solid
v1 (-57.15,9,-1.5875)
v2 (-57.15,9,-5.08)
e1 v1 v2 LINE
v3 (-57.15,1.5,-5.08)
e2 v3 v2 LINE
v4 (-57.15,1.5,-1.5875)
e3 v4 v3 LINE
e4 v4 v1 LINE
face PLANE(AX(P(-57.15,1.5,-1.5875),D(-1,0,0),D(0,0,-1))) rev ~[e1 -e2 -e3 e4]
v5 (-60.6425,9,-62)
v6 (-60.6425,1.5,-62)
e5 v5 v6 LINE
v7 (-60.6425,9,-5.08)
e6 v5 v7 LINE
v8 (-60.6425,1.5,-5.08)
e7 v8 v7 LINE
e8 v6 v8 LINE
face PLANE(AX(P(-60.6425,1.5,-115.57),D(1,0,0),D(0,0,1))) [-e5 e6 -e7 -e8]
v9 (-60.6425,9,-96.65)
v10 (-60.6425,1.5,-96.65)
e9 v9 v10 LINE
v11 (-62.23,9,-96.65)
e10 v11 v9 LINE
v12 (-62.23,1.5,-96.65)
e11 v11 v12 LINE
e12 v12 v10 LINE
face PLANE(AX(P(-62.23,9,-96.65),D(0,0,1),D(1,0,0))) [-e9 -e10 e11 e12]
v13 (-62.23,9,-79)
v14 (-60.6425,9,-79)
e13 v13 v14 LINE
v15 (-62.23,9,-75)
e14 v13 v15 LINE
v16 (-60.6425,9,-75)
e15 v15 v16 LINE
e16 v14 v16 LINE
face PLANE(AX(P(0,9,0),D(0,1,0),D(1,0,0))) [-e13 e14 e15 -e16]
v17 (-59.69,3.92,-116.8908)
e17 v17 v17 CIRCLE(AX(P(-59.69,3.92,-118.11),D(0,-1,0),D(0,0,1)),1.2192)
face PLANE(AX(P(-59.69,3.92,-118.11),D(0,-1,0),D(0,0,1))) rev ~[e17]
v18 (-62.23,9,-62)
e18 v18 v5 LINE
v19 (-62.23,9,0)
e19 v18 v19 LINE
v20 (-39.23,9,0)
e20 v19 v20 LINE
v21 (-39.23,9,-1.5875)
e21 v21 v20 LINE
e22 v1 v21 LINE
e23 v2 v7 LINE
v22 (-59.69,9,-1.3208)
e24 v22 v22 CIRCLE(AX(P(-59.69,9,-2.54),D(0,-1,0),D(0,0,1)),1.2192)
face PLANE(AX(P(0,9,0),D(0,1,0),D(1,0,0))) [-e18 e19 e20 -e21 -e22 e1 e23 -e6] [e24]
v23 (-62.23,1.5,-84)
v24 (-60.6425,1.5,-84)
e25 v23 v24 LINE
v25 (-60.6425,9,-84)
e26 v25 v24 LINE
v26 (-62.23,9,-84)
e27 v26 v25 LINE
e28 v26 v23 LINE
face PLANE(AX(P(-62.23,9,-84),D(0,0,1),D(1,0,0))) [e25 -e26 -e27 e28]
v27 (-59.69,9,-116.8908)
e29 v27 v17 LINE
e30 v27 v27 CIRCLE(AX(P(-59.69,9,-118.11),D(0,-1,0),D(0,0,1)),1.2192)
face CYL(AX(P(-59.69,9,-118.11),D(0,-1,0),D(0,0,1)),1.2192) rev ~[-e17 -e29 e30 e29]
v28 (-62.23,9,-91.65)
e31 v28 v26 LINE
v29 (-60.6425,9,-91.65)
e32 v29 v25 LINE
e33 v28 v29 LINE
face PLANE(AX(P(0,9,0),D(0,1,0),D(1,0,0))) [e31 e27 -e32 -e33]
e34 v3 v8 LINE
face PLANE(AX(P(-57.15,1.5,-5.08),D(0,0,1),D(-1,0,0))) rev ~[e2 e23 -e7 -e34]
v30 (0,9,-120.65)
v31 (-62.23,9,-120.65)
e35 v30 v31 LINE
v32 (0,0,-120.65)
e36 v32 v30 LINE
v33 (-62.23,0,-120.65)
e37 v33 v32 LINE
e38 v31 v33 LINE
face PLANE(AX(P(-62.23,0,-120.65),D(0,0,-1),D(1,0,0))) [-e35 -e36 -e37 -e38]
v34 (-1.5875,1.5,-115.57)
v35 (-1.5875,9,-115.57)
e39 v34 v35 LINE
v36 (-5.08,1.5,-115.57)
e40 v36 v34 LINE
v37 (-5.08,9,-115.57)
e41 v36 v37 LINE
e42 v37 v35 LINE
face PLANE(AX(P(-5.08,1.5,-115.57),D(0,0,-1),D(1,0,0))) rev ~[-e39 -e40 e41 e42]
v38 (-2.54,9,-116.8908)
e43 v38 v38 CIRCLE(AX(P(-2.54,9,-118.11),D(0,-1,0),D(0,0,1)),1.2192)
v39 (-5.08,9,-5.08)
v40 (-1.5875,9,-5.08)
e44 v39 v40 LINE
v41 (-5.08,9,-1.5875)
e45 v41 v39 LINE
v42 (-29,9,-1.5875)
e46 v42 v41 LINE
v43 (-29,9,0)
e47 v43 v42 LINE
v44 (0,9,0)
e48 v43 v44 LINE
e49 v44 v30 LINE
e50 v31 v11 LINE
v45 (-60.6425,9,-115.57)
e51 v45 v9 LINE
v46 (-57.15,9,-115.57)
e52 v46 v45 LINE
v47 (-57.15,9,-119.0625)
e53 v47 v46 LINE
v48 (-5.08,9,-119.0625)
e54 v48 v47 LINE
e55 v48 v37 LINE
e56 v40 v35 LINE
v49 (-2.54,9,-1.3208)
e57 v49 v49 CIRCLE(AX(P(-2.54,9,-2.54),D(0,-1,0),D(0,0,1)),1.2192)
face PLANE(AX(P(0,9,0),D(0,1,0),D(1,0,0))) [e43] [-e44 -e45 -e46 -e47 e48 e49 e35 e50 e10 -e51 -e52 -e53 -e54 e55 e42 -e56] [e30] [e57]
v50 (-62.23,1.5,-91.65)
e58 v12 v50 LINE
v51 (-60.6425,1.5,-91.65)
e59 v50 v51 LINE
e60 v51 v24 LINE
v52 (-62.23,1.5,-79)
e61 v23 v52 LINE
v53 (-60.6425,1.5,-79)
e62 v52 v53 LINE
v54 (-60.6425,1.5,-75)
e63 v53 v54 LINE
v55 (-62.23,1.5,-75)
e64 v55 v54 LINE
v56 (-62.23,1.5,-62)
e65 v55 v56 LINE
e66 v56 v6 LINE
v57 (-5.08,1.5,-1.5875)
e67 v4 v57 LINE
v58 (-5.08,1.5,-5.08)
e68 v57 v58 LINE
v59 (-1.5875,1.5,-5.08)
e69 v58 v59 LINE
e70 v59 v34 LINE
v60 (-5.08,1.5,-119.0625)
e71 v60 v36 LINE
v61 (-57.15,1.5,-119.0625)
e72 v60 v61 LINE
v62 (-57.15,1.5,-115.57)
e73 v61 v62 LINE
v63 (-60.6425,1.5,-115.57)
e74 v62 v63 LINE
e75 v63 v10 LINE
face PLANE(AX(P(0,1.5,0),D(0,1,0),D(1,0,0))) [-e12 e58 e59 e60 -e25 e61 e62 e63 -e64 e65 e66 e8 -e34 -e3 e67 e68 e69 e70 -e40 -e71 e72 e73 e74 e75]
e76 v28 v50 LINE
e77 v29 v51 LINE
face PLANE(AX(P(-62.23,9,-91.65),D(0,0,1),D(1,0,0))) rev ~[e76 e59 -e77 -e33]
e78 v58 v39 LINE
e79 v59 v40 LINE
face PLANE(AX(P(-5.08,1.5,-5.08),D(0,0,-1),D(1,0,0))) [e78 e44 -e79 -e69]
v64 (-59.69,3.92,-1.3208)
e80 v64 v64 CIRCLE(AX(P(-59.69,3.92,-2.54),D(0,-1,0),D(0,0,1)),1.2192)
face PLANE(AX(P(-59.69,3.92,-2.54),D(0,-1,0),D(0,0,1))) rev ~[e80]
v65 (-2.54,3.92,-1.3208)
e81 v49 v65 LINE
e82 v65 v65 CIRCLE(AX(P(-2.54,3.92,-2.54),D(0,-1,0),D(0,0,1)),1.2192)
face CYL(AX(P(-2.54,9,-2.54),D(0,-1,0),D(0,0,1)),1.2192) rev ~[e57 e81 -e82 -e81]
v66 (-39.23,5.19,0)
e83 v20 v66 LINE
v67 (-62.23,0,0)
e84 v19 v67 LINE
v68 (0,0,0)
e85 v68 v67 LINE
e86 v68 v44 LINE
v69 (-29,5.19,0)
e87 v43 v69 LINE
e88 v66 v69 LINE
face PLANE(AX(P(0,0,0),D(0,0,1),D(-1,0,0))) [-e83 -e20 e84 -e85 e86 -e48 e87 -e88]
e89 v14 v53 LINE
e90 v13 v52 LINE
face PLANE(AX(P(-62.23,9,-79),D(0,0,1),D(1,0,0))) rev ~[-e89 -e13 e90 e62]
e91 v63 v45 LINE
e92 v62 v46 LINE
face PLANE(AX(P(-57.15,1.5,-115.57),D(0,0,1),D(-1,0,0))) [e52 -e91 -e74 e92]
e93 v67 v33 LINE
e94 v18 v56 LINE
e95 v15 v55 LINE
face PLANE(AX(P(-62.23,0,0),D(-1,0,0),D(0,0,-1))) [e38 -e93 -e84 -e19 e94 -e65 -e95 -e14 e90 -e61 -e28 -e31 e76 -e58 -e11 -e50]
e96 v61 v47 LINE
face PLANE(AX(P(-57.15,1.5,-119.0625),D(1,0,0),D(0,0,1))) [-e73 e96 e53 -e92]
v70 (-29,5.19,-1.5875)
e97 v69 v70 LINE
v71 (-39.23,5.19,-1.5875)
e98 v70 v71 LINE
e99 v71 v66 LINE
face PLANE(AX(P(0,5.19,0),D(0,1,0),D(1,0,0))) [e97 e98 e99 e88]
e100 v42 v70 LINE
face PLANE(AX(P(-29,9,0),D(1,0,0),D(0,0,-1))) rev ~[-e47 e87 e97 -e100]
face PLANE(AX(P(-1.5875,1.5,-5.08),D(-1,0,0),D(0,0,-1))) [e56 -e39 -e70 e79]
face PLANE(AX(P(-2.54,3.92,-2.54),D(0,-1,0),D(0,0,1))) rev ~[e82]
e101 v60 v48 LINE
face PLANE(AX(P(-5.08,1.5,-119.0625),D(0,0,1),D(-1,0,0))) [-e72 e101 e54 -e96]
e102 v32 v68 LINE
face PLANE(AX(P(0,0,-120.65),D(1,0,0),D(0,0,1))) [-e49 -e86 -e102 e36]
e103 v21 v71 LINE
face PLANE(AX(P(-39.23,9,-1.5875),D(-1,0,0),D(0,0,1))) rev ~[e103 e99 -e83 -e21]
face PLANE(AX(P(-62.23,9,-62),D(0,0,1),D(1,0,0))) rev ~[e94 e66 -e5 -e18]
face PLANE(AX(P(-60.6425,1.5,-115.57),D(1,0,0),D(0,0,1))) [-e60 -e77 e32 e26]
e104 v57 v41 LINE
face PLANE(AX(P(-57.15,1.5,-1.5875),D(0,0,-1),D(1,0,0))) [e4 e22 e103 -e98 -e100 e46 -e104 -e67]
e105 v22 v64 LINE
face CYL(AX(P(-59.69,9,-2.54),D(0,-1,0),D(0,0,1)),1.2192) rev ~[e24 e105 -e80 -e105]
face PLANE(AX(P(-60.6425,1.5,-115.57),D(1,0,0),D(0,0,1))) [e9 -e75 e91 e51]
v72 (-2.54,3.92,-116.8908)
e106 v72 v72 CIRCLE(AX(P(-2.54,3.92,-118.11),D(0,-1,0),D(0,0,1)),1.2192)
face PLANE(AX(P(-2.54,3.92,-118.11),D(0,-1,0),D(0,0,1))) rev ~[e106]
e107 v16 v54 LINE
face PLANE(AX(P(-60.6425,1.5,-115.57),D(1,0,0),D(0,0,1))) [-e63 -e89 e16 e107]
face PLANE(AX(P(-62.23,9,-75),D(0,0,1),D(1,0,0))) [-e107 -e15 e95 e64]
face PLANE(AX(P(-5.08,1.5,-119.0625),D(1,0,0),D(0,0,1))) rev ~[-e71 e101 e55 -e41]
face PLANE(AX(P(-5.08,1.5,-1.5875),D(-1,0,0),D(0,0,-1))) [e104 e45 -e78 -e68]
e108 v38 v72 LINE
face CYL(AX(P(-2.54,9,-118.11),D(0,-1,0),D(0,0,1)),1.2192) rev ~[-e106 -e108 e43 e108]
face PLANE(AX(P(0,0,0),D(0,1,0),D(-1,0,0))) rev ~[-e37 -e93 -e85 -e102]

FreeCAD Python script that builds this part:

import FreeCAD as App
import Part
import Sketcher
Q = App.Units.Quantity


def add_polygon(sketch, points):
    """Adds a closed chain of lines whose ends are joined by coincident constraints."""
    first, n = sketch.GeometryCount, len(points)
    for a, b in zip(points, points[1:] + points[:1]):
        sketch.addGeometry(Part.LineSegment(App.Vector(*a, 0), App.Vector(*b, 0)), False)
    for i in range(n):
        sketch.addConstraint(Sketcher.Constraint("Coincident", first + i, 2, first + (i + 1) % n, 1))

doc = App.newDocument("Part")
params = doc.addObject("Spreadsheet::Sheet", "Params")
for row, (alias, value) in enumerate([
    ("sketch1_width", "2.45 in"),
    ("sketch1_height", "4.75 in"),
    ("pad1_length", "1.5 mm"),
    ("sketch2_width", "2.45 in"),
    ("sketch2_height", "4.75 in"),
    ("pad2_length", "7.5 mm"),
    ("sketch3_height", "0.0625 in"),
    ("pocket1_length", "0.15 in"),
    ("sketch4_diameter", "0.096 in"),
    ("hole_diameter", "0.096 in"),
    ("hole_depth", "0.2 in"),
    ("sketch5_width", "0.0625 in"),
    ("pocket2_length", "7.5 mm"),
], start=1):
    params.set(f"A{row}", alias)
    params.set(f"B{row}", "=" + value)
    params.setAlias(f"B{row}", alias)

body = doc.addObject("PartDesign::Body", "Body")

# Sketch on XZ plane
sketch1 = body.newObject("Sketcher::SketchObject", "Sketch")
sketch1.AttachmentSupport = (doc.getObject("XZ_Plane"), [""])
sketch1.MapMode = "FlatFace"
add_polygon(sketch1, [(-62, 0), (0, 0), (0, -121), (-62, -121)])  # lines 0-3
sketch1.addConstraint(Sketcher.Constraint("Horizontal", 0))
sketch1.addConstraint(Sketcher.Constraint("Vertical", 1))
sketch1.addConstraint(Sketcher.Constraint("Horizontal", 2))
sketch1.addConstraint(Sketcher.Constraint("Vertical", 3))
sketch1.addConstraint(Sketcher.Constraint("Coincident", 0, 2, -1, 1))
sketch1.addConstraint(Sketcher.Constraint("DistanceX", 0, 1, 0, 2, Q("2.45 in")))
sketch1.addConstraint(Sketcher.Constraint("DistanceY", 1, 2, 1, 1, Q("4.75 in")))
sketch1.setExpression("Constraints[9]", "Params.sketch1_width")
sketch1.setExpression("Constraints[10]", "Params.sketch1_height")
pad1 = body.newObject("PartDesign::Pad", "Pad")
pad1.Profile = sketch1
pad1.setExpression("Length", "Params.pad1_length")
pad1.Reversed = True

# Sketch on XZ plane
sketch2 = body.newObject("Sketcher::SketchObject", "Sketch001")
sketch2.AttachmentSupport = (doc.getObject("XZ_Plane"), [""])
sketch2.MapMode = "FlatFace"
sketch2.AttachmentOffset = App.Placement(App.Vector(0, 0, -1.5), App.Rotation())
add_polygon(sketch2, [(-62.2, 0), (0, 0), (0, -120.7), (-62.2, -120.7)])  # lines 0-3
add_polygon(sketch2, [(-57.1, -5.1), (-60.6, -5.1), (-60.6, -115.6), (-57.1, -115.6), (-57.1, -119.1), (-5.1, -119.1), (-5.1, -115.6), (-1.6, -115.6), (-1.6, -5.1), (-5.1, -5.1), (-5.1, -1.6), (-57.1, -1.6)])  # lines 4-15
sketch2.addConstraint(Sketcher.Constraint("Horizontal", 0))
sketch2.addConstraint(Sketcher.Constraint("Vertical", 1))
sketch2.addConstraint(Sketcher.Constraint("Horizontal", 2))
sketch2.addConstraint(Sketcher.Constraint("Vertical", 3))
sketch2.addConstraint(Sketcher.Constraint("Horizontal", 4))
sketch2.addConstraint(Sketcher.Constraint("Vertical", 5))
sketch2.addConstraint(Sketcher.Constraint("Horizontal", 6))
sketch2.addConstraint(Sketcher.Constraint("Vertical", 7))
sketch2.addConstraint(Sketcher.Constraint("Horizontal", 8))
sketch2.addConstraint(Sketcher.Constraint("Vertical", 9))
sketch2.addConstraint(Sketcher.Constraint("Horizontal", 10))
sketch2.addConstraint(Sketcher.Constraint("Vertical", 11))
sketch2.addConstraint(Sketcher.Constraint("Horizontal", 12))
sketch2.addConstraint(Sketcher.Constraint("Vertical", 13))
sketch2.addConstraint(Sketcher.Constraint("Horizontal", 14))
sketch2.addConstraint(Sketcher.Constraint("Vertical", 15))
sketch2.addConstraint(Sketcher.Constraint("Coincident", 0, 2, -1, 1))
sketch2.addConstraint(Sketcher.Constraint("Horizontal", 6, 2, 9, 2))
sketch2.addConstraint(Sketcher.Constraint("Horizontal", 4, 2, 11, 2))
sketch2.addConstraint(Sketcher.Constraint("Vertical", 9, 2, 12, 2))
sketch2.addConstraint(Sketcher.Constraint("Vertical", 7, 2, 14, 2))
sketch2.addConstraint(Sketcher.Constraint("Equal", 6, 10))
sketch2.addConstraint(Sketcher.Constraint("Equal", 12, 7))
sketch2.addConstraint(Sketcher.Constraint("Equal", 9, 13))
sketch2.addConstraint(Sketcher.Constraint("DistanceY", 4, 2, -1, 1, Q("0.2 in")))
sketch2.addConstraint(Sketcher.Constraint("DistanceX", 8, 2, -1, 1, Q("0.2 in")))
sketch2.addConstraint(Sketcher.Constraint("DistanceY", 2, 2, 5, 2, Q("0.2 in")))
sketch2.addConstraint(Sketcher.Constraint("DistanceX", 2, 2, 6, 2, Q("0.2 in")))
sketch2.addConstraint(Sketcher.Constraint("DistanceX", 10, 2, -1, 1, Q("0.0625 in")))
sketch2.addConstraint(Sketcher.Constraint("DistanceX", 0, 1, 0, 2, Q("2.45 in")))
sketch2.addConstraint(Sketcher.Constraint("DistanceY", 1, 2, 1, 1, Q("4.75 in")))
sketch2.setExpression("Constraints[45]", "Params.sketch2_width")
sketch2.setExpression("Constraints[46]", "Params.sketch2_height")
pad2 = body.newObject("PartDesign::Pad", "Pad001")
pad2.Profile = sketch2
pad2.setExpression("Length", "Params.pad2_length")
pad2.Reversed = True

# Sketch on XZ plane
sketch3 = body.newObject("Sketcher::SketchObject", "Sketch002")
sketch3.AttachmentSupport = (doc.getObject("XZ_Plane"), [""])
sketch3.MapMode = "FlatFace"
sketch3.AttachmentOffset = App.Placement(App.Vector(0, 0, -9), App.Rotation())
add_polygon(sketch3, [(-39.2, -1.6), (-39.2, 0), (-29, 0), (-29, -1.6)])  # lines 0-3
sketch3.addConstraint(Sketcher.Constraint("Vertical", 0))
sketch3.addConstraint(Sketcher.Constraint("Horizontal", 1))
sketch3.addConstraint(Sketcher.Constraint("Vertical", 2))
sketch3.addConstraint(Sketcher.Constraint("Horizontal", 3))
sketch3.addConstraint(Sketcher.Constraint("PointOnObject", 0, 2, -1))
sketch3.addConstraint(Sketcher.Constraint("DistanceY", 0, 1, 0, 2, Q("0.0625 in")))
sketch3.addConstraint(Sketcher.Constraint("DistanceX", 1, 2, -1, 1, Q("29 mm")))
sketch3.addConstraint(Sketcher.Constraint("DistanceX", 1, 1, 1, 2, Q("10.23 mm")))
sketch3.setExpression("Constraints[9]", "Params.sketch3_height")
pocket1 = body.newObject("PartDesign::Pocket", "Pocket")
pocket1.Profile = sketch3
pocket1.setExpression("Length", "Params.pocket1_length")
pocket1.Reversed = True

# Sketch on XZ plane
sketch4 = body.newObject("Sketcher::SketchObject", "Sketch003")
sketch4.AttachmentSupport = (doc.getObject("XZ_Plane"), [""])
sketch4.MapMode = "FlatFace"
sketch4.AttachmentOffset = App.Placement(App.Vector(0, 0, -9), App.Rotation())
sketch4.addGeometry(Part.Circle(App.Vector(-2.5, -2.5, 0), App.Vector(0, 0, 1), 1.2), False)
sketch4.addGeometry(Part.Circle(App.Vector(-2.5, -118.1, 0), App.Vector(0, 0, 1), 1.2), False)
sketch4.addGeometry(Part.Circle(App.Vector(-59.7, -118.1, 0), App.Vector(0, 0, 1), 1.2), False)
sketch4.addGeometry(Part.Circle(App.Vector(-59.7, -2.5, 0), App.Vector(0, 0, 1), 1.2), False)
sketch4.addConstraint(Sketcher.Constraint("Equal", 0, 1))
sketch4.addConstraint(Sketcher.Constraint("Equal", 1, 2))
sketch4.addConstraint(Sketcher.Constraint("Equal", 2, 3))
sketch4.addConstraint(Sketcher.Constraint("Horizontal", 1, 3, 2, 3))
sketch4.addConstraint(Sketcher.Constraint("Horizontal", 0, 3, 3, 3))
sketch4.addConstraint(Sketcher.Constraint("Vertical", 0, 3, 1, 3))
sketch4.addConstraint(Sketcher.Constraint("Vertical", 2, 3, 3, 3))
sketch4.addConstraint(Sketcher.Constraint("Diameter", 0, Q("0.096 in")))
sketch4.addConstraint(Sketcher.Constraint("DistanceX", 0, 3, -1, 1, Q("0.1 in")))
sketch4.addConstraint(Sketcher.Constraint("DistanceY", 0, 3, -1, 1, Q("0.1 in")))
sketch4.addConstraint(Sketcher.Constraint("DistanceY", 1, 3, -1, 1, Q("4.65 in")))
sketch4.addConstraint(Sketcher.Constraint("DistanceX", 2, 3, -1, 1, Q("2.35 in")))
sketch4.setExpression("Constraints[7]", "Params.sketch4_diameter")
doc.recompute()
hole = body.newObject("PartDesign::Hole", "Hole")
hole.Profile = sketch4
hole.ThreadType = "None"
hole.setExpression("Diameter", "Params.hole_diameter")
hole.DepthType = "Dimension"
hole.setExpression("Depth", "Params.hole_depth")
hole.DrillPoint = "Flat"
hole.Reversed = True

# Sketch on XZ plane
sketch5 = body.newObject("Sketcher::SketchObject", "Sketch004")
sketch5.AttachmentSupport = (doc.getObject("XZ_Plane"), [""])
sketch5.MapMode = "FlatFace"
sketch5.AttachmentOffset = App.Placement(App.Vector(0, 0, -9), App.Rotation())
add_polygon(sketch5, [(-62.2, -96.7), (-62.2, -91.7), (-60.6, -91.7), (-60.6, -96.7)])  # lines 0-3
add_polygon(sketch5, [(-60.6, -84), (-62.2, -84), (-62.2, -79), (-60.6, -79)])  # lines 4-7
add_polygon(sketch5, [(-60.6, -75), (-62.2, -75), (-62.2, -62), (-60.6, -62)])  # lines 8-11
sketch5.addConstraint(Sketcher.Constraint("Vertical", 0))
sketch5.addConstraint(Sketcher.Constraint("Horizontal", 1))
sketch5.addConstraint(Sketcher.Constraint("Vertical", 2))
sketch5.addConstraint(Sketcher.Constraint("Horizontal", 3))
sketch5.addConstraint(Sketcher.Constraint("Horizontal", 4))
sketch5.addConstraint(Sketcher.Constraint("Vertical", 5))
sketch5.addConstraint(Sketcher.Constraint("Horizontal", 6))
sketch5.addConstraint(Sketcher.Constraint("Vertical", 7))
sketch5.addConstraint(Sketcher.Constraint("Horizontal", 8))
sketch5.addConstraint(Sketcher.Constraint("Vertical", 9))
sketch5.addConstraint(Sketcher.Constraint("Horizontal", 10))
sketch5.addConstraint(Sketcher.Constraint("Vertical", 11))
sketch5.addConstraint(Sketcher.Constraint("Vertical", 3, 2, 4, 2))
sketch5.addConstraint(Sketcher.Constraint("Vertical", 2, 2, 6, 2))
sketch5.addConstraint(Sketcher.Constraint("Vertical", 5, 2, 8, 2))
sketch5.addConstraint(Sketcher.Constraint("Vertical", 7, 2, 10, 2))
sketch5.addConstraint(Sketcher.Constraint("Equal", 2, 5))
sketch5.addConstraint(Sketcher.Constraint("DistanceY", 0, 1, 0, 2, Q("5 mm")))
sketch5.addConstraint(Sketcher.Constraint("DistanceX", 1, 1, 1, 2, Q("0.0625 in")))
sketch5.addConstraint(Sketcher.Constraint("DistanceY", 5, 2, -1, 1, Q("79 mm")))
sketch5.addConstraint(Sketcher.Constraint("DistanceY", 8, 2, -1, 1, Q("75 mm")))
sketch5.addConstraint(Sketcher.Constraint("DistanceY", 9, 2, -1, 1, Q("62 mm")))
sketch5.addConstraint(Sketcher.Constraint("DistanceX", 0, 2, -1, 1, Q("2.45 in")))
sketch5.addConstraint(Sketcher.Constraint("DistanceY", 0, 2, 8, 2, Q("0.6555 in")))
sketch5.setExpression("Constraints[30]", "Params.sketch5_width")
pocket2 = body.newObject("PartDesign::Pocket", "Pocket001")
pocket2.Profile = sketch5
pocket2.setExpression("Length", "Params.pocket2_length")
pocket2.Reversed = True

doc.recompute()
